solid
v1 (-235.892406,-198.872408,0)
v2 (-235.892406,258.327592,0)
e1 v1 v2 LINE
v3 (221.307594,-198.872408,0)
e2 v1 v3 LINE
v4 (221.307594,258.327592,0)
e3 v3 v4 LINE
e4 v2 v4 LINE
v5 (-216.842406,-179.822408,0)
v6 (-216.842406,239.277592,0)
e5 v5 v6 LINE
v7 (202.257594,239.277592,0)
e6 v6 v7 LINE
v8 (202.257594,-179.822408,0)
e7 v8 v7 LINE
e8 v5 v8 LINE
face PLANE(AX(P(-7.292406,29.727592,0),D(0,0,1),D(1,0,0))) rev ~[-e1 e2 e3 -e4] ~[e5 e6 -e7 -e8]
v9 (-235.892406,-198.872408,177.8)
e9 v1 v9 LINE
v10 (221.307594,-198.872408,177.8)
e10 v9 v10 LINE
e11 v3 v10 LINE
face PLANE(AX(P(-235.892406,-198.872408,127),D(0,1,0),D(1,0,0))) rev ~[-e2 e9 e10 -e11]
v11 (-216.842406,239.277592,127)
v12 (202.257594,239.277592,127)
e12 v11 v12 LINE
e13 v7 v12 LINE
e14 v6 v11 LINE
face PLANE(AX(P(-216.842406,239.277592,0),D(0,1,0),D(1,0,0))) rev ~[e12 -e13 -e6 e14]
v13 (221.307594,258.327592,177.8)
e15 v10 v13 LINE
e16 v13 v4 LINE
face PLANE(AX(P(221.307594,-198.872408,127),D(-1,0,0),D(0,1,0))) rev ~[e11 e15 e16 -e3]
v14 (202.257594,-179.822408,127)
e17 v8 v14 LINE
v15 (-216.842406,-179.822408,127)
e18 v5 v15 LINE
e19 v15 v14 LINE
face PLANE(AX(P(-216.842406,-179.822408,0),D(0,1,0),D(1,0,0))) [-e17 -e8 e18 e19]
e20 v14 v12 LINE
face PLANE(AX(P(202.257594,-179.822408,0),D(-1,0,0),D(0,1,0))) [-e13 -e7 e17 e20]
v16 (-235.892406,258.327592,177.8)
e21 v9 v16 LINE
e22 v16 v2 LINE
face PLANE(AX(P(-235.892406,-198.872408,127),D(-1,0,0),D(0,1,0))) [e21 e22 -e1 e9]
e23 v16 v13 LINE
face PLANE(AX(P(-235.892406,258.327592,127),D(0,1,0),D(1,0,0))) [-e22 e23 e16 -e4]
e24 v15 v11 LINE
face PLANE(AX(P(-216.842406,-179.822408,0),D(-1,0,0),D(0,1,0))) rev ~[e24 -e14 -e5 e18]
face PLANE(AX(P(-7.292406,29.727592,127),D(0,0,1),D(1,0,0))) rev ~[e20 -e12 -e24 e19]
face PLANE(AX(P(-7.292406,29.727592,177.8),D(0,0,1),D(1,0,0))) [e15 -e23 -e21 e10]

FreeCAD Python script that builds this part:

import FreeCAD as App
import Part
import Sketcher

V = App.Vector
Q = App.Units.Quantity

doc = App.newDocument("Part")
body = doc.addObject("PartDesign::Body", "Body")

sketch1 = doc.addObject("Sketcher::SketchObject", "Sketch")
body.addObject(sketch1)
sketch1.AttachmentSupport = (doc.XY_Plane, [""])
sketch1.MapMode = "FlatFace"
sketch1.addGeometry([
    Part.LineSegment(V(-235.892406, 258.327592, 0), V(-235.892406, -198.872408, 0)),
    Part.LineSegment(V(-235.892406, -198.872408, 0), V(221.307594, -198.872408, 0)),
    Part.LineSegment(V(221.307594, -198.872408, 0), V(221.307594, 258.327592, 0)),
    Part.LineSegment(V(221.307594, 258.327592, 0), V(-235.892406, 258.327592, 0)),
    Part.LineSegment(V(202.257594, -179.822408, 0), V(-216.842406, -179.822408, 0)),
    Part.LineSegment(V(-216.842406, -179.822408, 0), V(-216.842406, 239.277592, 0)),
    Part.LineSegment(V(-216.842406, 239.277592, 0), V(202.257594, 239.277592, 0)),
    Part.LineSegment(V(202.257594, 239.277592, 0), V(202.257594, -179.822408, 0)),
], False)
sketch1.addConstraint([
    Sketcher.Constraint("Coincident", 0, 2, 1, 1),
    Sketcher.Constraint("Coincident", 1, 2, 2, 1),
    Sketcher.Constraint("Coincident", 2, 2, 3, 1),
    Sketcher.Constraint("Coincident", 3, 2, 0, 1),
    Sketcher.Constraint("Coincident", 4, 2, 5, 1),
    Sketcher.Constraint("Coincident", 5, 2, 6, 1),
    Sketcher.Constraint("Coincident", 6, 2, 7, 1),
    Sketcher.Constraint("Coincident", 7, 2, 4, 1),
    Sketcher.Constraint("Vertical", 0),
    Sketcher.Constraint("Horizontal", 1),
    Sketcher.Constraint("Vertical", 2),
    Sketcher.Constraint("Horizontal", 3),
    Sketcher.Constraint("Horizontal", 4),
    Sketcher.Constraint("Vertical", 5),
    Sketcher.Constraint("Horizontal", 6),
    Sketcher.Constraint("Vertical", 7),
    Sketcher.Constraint("Equal", 3, 0),
    Sketcher.Constraint("Equal", 6, 5),
    Sketcher.Constraint("DistanceX", 1, 1, 1, 2, Q("18 in")),
    Sketcher.Constraint("DistanceX", 4, 2, 4, 1, Q("16.5 in")),
    Sketcher.Constraint("DistanceX", 0, 2, 4, 2, Q("0.75 in")),
    Sketcher.Constraint("DistanceY", 0, 2, 4, 2, Q("0.75 in")),
    Sketcher.Constraint("DistanceY", 0, 2, -1, 1, 198.872408),
    Sketcher.Constraint("DistanceX", 0, 2, -1, 1, 235.892406),
])
pad1 = doc.addObject("PartDesign::Pad", "Pad")
body.addObject(pad1)
pad1.Profile = sketch1
pad1.Length = Q("5 in")

sketch2 = doc.addObject("Sketcher::SketchObject", "Sketch001")
body.addObject(sketch2)
sketch2.AttachmentSupport = (doc.XY_Plane, [""])
sketch2.MapMode = "FlatFace"
sketch2.AttachmentOffset = App.Placement(V(0, 0, 5 * 25.4), App.Rotation())
sketch2.addGeometry([
    Part.LineSegment(V(-235.892406, 258.327592, 0), V(-235.892406, -198.872408, 0)),
    Part.LineSegment(V(-235.892406, -198.872408, 0), V(221.307594, -198.872408, 0)),
    Part.LineSegment(V(221.307594, -198.872408, 0), V(221.307594, 258.327592, 0)),
    Part.LineSegment(V(221.307594, 258.327592, 0), V(-235.892406, 258.327592, 0)),
], False)
sketch2.addConstraint([
    Sketcher.Constraint("Coincident", 0, 2, 1, 1),
    Sketcher.Constraint("Coincident", 1, 2, 2, 1),
    Sketcher.Constraint("Coincident", 2, 2, 3, 1),
    Sketcher.Constraint("Coincident", 3, 2, 0, 1),
    Sketcher.Constraint("Vertical", 0),
    Sketcher.Constraint("Horizontal", 1),
    Sketcher.Constraint("Vertical", 2),
    Sketcher.Constraint("Horizontal", 3),
    Sketcher.Constraint("Equal", 3, 0),
    Sketcher.Constraint("DistanceX", 1, 1, 1, 2, Q("18 in")),
    Sketcher.Constraint("DistanceY", 0, 2, -1, 1, 198.872408),
    Sketcher.Constraint("DistanceX", 0, 2, -1, 1, 235.892406),
])
pad2 = doc.addObject("PartDesign::Pad", "Pad001")
body.addObject(pad2)
pad2.Profile = sketch2
pad2.Length = Q("2 in")

doc.recompute()
